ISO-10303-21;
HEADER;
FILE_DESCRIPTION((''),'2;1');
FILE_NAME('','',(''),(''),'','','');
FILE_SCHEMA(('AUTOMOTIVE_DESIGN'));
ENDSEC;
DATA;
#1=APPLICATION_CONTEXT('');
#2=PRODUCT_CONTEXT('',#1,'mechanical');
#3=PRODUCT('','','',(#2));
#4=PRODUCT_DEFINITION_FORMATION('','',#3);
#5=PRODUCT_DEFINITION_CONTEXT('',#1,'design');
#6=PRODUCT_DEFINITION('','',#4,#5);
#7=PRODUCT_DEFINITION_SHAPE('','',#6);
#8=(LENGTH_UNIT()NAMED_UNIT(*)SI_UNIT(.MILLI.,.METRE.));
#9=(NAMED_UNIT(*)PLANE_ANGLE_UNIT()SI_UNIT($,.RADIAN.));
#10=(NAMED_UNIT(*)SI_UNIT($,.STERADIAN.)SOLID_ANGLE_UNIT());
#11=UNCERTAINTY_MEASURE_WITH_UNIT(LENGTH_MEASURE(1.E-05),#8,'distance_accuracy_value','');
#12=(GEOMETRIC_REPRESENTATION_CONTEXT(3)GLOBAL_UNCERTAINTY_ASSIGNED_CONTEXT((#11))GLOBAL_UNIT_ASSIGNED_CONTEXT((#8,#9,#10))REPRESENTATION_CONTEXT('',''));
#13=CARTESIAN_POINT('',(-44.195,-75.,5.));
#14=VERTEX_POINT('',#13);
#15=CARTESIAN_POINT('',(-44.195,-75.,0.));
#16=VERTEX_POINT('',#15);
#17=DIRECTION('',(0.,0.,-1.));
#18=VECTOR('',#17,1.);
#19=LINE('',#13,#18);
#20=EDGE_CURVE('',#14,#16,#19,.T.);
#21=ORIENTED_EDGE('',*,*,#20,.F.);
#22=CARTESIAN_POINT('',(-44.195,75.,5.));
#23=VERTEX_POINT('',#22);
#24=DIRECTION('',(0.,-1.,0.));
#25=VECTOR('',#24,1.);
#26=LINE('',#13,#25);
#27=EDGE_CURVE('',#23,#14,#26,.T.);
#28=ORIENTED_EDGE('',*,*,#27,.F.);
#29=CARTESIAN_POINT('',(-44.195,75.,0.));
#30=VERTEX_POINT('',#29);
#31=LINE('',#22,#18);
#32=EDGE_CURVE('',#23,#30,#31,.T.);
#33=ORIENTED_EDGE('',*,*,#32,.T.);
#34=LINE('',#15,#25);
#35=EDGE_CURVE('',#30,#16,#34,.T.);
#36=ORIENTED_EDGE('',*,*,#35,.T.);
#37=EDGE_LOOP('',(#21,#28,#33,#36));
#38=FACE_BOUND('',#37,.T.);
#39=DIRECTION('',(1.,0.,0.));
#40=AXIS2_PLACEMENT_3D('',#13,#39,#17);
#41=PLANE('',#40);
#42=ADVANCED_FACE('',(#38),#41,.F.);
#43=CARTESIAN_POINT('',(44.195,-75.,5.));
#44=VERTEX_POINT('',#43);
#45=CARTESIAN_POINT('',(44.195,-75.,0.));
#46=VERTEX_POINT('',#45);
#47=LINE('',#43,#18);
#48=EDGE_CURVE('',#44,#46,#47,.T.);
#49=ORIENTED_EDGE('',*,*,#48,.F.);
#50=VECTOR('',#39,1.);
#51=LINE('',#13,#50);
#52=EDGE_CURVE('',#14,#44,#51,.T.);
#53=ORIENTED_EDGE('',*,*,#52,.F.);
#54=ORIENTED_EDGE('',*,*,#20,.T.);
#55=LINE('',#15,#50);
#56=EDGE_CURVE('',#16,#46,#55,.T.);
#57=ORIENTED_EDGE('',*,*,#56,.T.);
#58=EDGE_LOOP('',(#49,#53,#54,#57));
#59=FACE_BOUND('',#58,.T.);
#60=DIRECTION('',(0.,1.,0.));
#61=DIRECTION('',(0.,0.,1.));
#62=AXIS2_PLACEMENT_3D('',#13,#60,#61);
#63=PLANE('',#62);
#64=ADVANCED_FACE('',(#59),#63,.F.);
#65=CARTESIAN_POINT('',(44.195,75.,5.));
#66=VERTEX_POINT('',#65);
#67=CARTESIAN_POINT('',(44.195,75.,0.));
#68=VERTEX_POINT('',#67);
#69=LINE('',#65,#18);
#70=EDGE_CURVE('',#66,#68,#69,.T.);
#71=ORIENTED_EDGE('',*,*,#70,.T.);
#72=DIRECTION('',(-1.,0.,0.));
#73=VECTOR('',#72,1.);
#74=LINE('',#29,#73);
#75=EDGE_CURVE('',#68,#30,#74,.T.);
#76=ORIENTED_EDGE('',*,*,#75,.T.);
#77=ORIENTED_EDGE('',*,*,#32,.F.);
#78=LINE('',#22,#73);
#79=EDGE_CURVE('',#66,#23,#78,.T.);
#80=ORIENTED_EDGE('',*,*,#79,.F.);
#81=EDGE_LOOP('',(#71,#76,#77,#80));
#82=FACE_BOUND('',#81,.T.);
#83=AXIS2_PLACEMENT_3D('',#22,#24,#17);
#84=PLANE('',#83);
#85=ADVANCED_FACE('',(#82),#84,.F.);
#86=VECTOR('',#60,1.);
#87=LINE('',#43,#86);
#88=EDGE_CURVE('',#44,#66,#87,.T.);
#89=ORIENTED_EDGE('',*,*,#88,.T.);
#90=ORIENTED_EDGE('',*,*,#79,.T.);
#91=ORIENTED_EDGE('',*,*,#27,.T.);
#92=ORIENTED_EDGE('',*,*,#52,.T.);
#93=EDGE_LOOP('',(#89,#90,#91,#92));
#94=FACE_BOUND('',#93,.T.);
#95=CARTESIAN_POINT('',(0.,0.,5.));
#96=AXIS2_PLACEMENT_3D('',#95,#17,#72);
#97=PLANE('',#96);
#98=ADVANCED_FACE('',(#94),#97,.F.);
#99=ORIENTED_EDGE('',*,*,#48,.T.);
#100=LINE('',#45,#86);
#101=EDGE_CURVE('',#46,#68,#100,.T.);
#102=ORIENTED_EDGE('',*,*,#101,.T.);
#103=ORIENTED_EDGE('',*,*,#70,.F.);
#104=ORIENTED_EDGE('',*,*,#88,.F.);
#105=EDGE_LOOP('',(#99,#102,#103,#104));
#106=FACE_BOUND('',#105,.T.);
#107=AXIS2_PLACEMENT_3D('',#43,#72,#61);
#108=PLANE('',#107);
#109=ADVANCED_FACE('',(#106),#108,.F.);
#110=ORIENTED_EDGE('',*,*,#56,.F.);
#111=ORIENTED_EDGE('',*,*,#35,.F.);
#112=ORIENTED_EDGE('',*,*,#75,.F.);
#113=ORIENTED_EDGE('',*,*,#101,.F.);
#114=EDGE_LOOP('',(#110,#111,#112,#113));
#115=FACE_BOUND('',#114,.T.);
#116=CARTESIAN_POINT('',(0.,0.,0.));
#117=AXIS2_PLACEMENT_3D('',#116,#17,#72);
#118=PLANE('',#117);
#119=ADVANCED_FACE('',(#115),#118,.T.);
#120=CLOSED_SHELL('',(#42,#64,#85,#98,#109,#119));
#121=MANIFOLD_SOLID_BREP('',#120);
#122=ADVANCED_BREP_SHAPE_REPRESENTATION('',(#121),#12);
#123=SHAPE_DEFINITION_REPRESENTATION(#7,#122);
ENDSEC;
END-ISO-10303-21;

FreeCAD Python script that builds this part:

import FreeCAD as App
import Part
import Sketcher
Q = App.Units.Quantity


def add_polygon(sketch, points):
    """Adds a closed chain of lines whose ends are joined by coincident constraints."""
    first, n = sketch.GeometryCount, len(points)
    for a, b in zip(points, points[1:] + points[:1]):
        sketch.addGeometry(Part.LineSegment(App.Vector(*a, 0), App.Vector(*b, 0)), False)
    for i in range(n):
        sketch.addConstraint(Sketcher.Constraint("Coincident", first + i, 2, first + (i + 1) % n, 1))

doc = App.newDocument("Part")
body = doc.addObject("PartDesign::Body", "Body")

# Sketch on XY plane
sketch1 = body.newObject("Sketcher::SketchObject", "Sketch")
sketch1.AttachmentSupport = (doc.getObject("XY_Plane"), [""])
sketch1.MapMode = "FlatFace"
add_polygon(sketch1, [(-44, 75), (-44, -75), (44, -75), (44, 75)])  # lines 0-3
sketch1.addConstraint(Sketcher.Constraint("Vertical", 0))
sketch1.addConstraint(Sketcher.Constraint("Horizontal", 1))
sketch1.addConstraint(Sketcher.Constraint("Vertical", 2))
sketch1.addConstraint(Sketcher.Constraint("Horizontal", 3))
sketch1.addConstraint(Sketcher.Constraint("Symmetric", 0, 2, 2, 2, -1, 1))
sketch1.addConstraint(Sketcher.Constraint("DistanceY", 0, 2, 0, 1, Q("150 mm")))
sketch1.addConstraint(Sketcher.Constraint("DistanceX", 1, 1, 1, 2, Q("88.39 mm")))
pad1 = body.newObject("PartDesign::Pad", "Pad")
pad1.Profile = sketch1
pad1.Length = 5

doc.recompute()
